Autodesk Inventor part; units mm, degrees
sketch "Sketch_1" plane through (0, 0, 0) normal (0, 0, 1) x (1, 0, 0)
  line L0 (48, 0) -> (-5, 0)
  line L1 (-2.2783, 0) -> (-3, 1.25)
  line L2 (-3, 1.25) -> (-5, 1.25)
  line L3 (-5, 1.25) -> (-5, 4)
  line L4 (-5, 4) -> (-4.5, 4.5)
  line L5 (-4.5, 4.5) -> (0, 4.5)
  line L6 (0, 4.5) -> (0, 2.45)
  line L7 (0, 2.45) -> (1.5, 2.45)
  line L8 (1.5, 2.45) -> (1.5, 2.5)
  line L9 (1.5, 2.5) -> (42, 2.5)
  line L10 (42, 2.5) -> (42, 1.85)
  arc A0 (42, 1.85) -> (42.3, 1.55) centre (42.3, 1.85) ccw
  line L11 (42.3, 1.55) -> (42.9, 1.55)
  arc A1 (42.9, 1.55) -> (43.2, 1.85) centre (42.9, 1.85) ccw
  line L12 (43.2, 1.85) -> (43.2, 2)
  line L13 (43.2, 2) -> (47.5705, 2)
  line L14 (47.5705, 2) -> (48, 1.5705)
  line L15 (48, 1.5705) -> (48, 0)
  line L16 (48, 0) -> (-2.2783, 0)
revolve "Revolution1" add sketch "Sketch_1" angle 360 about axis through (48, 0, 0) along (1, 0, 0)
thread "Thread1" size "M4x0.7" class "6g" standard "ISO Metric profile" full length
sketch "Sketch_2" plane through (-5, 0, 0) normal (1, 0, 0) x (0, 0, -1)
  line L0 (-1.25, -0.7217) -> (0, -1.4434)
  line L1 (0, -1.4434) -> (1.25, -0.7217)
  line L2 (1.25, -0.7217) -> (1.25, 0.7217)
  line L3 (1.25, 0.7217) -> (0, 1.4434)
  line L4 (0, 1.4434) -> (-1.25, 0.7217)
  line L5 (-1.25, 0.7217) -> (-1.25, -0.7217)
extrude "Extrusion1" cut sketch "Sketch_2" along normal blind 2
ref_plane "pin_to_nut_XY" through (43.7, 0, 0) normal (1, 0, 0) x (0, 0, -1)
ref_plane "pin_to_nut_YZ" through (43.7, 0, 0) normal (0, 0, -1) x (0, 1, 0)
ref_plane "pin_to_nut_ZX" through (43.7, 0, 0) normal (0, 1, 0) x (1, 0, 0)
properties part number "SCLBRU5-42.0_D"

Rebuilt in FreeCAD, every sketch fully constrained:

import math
import FreeCAD as App
import Part
import Sketcher
Q = App.Units.Quantity


def add_polygon(sketch, points):
    """Adds a closed chain of lines whose ends are joined by coincident constraints."""
    first, n = sketch.GeometryCount, len(points)
    for a, b in zip(points, points[1:] + points[:1]):
        sketch.addGeometry(Part.LineSegment(App.Vector(*a, 0), App.Vector(*b, 0)), False)
    for i in range(n):
        sketch.addConstraint(Sketcher.Constraint("Coincident", first + i, 2, first + (i + 1) % n, 1))

doc = App.newDocument("Part")
params = doc.addObject("Spreadsheet::Sheet", "Params")
for row, (alias, value) in enumerate([
    ("sketch1_radius", "0.3 mm"),
    ("sketch1_width", "2 mm"),
    ("sketch1_width2", "0.6 mm"),
    ("sketch1_width3", "40.5 mm"),
    ("sketch1_width4", "1.5 mm"),
    ("revolution_angle", "360 deg"),
    ("pocket1_length", "2 mm"),
], start=1):
    params.set(f"A{row}", alias)
    params.set(f"B{row}", "=" + value)
    params.setAlias(f"B{row}", alias)

body = doc.addObject("PartDesign::Body", "Body")

# Sketch on XY plane
sketch1 = body.newObject("Sketcher::SketchObject", "Sketch")
sketch1.AttachmentSupport = (doc.getObject("XY_Plane"), [""])
sketch1.MapMode = "FlatFace"
sketch1.addGeometry([
    Part.LineSegment(App.Vector(-2.278, 0, 0), App.Vector(48, 0, 0)),  # 0
    Part.LineSegment(App.Vector(48, 0, 0), App.Vector(48, 1.571, 0)),  # 1
    Part.LineSegment(App.Vector(48, 1.571, 0), App.Vector(47.571, 2, 0)),  # 2
    Part.LineSegment(App.Vector(47.571, 2, 0), App.Vector(43.2, 2, 0)),  # 3
    Part.LineSegment(App.Vector(43.2, 2, 0), App.Vector(43.2, 1.85, 0)),  # 4
    Part.ArcOfCircle(Part.Circle(App.Vector(42.9, 1.85, 0), App.Vector(0, 0, 1), 0.3), math.radians(-90), math.radians(0)),  # 5
    Part.LineSegment(App.Vector(42.9, 1.55, 0), App.Vector(42.3, 1.55, 0)),  # 6
    Part.ArcOfCircle(Part.Circle(App.Vector(42.3, 1.85, 0), App.Vector(0, 0, 1), 0.3), math.radians(180), math.radians(270)),  # 7
    Part.LineSegment(App.Vector(42, 1.85, 0), App.Vector(42, 2.5, 0)),  # 8
    Part.LineSegment(App.Vector(42, 2.5, 0), App.Vector(1.5, 2.5, 0)),  # 9
    Part.LineSegment(App.Vector(1.5, 2.5, 0), App.Vector(1.5, 2.45, 0)),  # 10
    Part.LineSegment(App.Vector(1.5, 2.45, 0), App.Vector(0, 2.45, 0)),  # 11
    Part.LineSegment(App.Vector(0, 2.45, 0), App.Vector(0, 4.5, 0)),  # 12
    Part.LineSegment(App.Vector(0, 4.5, 0), App.Vector(-4.5, 4.5, 0)),  # 13
    Part.LineSegment(App.Vector(-4.5, 4.5, 0), App.Vector(-5, 4, 0)),  # 14
    Part.LineSegment(App.Vector(-5, 4, 0), App.Vector(-5, 1.25, 0)),  # 15
    Part.LineSegment(App.Vector(-5, 1.25, 0), App.Vector(-3, 1.25, 0)),  # 16
    Part.LineSegment(App.Vector(-3, 1.25, 0), App.Vector(-2.278, 0, 0)),  # 17
], False)
sketch1.addConstraint([
    Sketcher.Constraint("Coincident", 0, 2, 1, 1),
    Sketcher.Constraint("Coincident", 1, 2, 2, 1),
    Sketcher.Constraint("Coincident", 2, 2, 3, 1),
    Sketcher.Constraint("Coincident", 3, 2, 4, 1),
    Sketcher.Constraint("Tangent", 4, 2, 5, 2),
    Sketcher.Constraint("Tangent", 5, 1, 6, 1),
    Sketcher.Constraint("Tangent", 6, 2, 7, 2),
    Sketcher.Constraint("Tangent", 7, 1, 8, 1),
    Sketcher.Constraint("Coincident", 8, 2, 9, 1),
    Sketcher.Constraint("Coincident", 9, 2, 10, 1),
    Sketcher.Constraint("Coincident", 10, 2, 11, 1),
    Sketcher.Constraint("Coincident", 11, 2, 12, 1),
    Sketcher.Constraint("Coincident", 12, 2, 13, 1),
    Sketcher.Constraint("Coincident", 13, 2, 14, 1),
    Sketcher.Constraint("Coincident", 14, 2, 15, 1),
    Sketcher.Constraint("Coincident", 15, 2, 16, 1),
    Sketcher.Constraint("Coincident", 16, 2, 17, 1),
    Sketcher.Constraint("Coincident", 17, 2, 0, 1),
    Sketcher.Constraint("Horizontal", 0),
    Sketcher.Constraint("Vertical", 1),
    Sketcher.Constraint("Horizontal", 3),
    Sketcher.Constraint("Vertical", 4),
    Sketcher.Constraint("Horizontal", 6),
    Sketcher.Constraint("Vertical", 8),
    Sketcher.Constraint("Horizontal", 9),
    Sketcher.Constraint("Vertical", 10),
    Sketcher.Constraint("Horizontal", 11),
    Sketcher.Constraint("Vertical", 12),
    Sketcher.Constraint("Horizontal", 13),
    Sketcher.Constraint("Vertical", 15),
    Sketcher.Constraint("Horizontal", 16),
    Sketcher.Constraint("Equal", 5, 7),
    Sketcher.Constraint("PointOnObject", 0, 2, -1),
    Sketcher.Constraint("PointOnObject", 11, 2, -2),
    Sketcher.Constraint("Perpendicular", 2, 14),
    Sketcher.Constraint("Radius", 5, Q("0.3 mm")),
    Sketcher.Constraint("DistanceX", 16, 1, 16, 2, Q("2 mm")),
    Sketcher.Constraint("Angle", 2, Q("135 deg")),
    Sketcher.Constraint("Angle", 17, Q("-59.9996 deg")),
    Sketcher.Constraint("DistanceX", 6, 2, 6, 1, Q("0.6 mm")),
    Sketcher.Constraint("DistanceX", 9, 2, 9, 1, Q("40.5 mm")),
    Sketcher.Constraint("DistanceX", 11, 2, 11, 1, Q("1.5 mm")),
    Sketcher.Constraint("DistanceX", 13, 2, 13, 1, Q("4.5 mm")),
    Sketcher.Constraint("DistanceX", -1, 1, 0, 2, Q("48 mm")),
    Sketcher.Constraint("DistanceY", -1, 1, 2, 2, Q("2 mm")),
    Sketcher.Constraint("DistanceX", 14, 2, -1, 1, Q("5 mm")),
    Sketcher.Constraint("DistanceY", -1, 1, 14, 2, Q("4 mm")),
    Sketcher.Constraint("DistanceY", 9, 2, 12, 2, Q("2 mm")),
    Sketcher.Constraint("DistanceY", 4, 2, 4, 1, Q("0.15 mm")),
    Sketcher.Constraint("DistanceY", 10, 2, 10, 1, Q("0.05 mm")),
    Sketcher.Constraint("DistanceY", 15, 2, 15, 1, Q("2.75 mm")),
    Sketcher.Constraint("DistanceX", 3, 2, 3, 1, Q("4.3705 mm")),
])
sketch1.setExpression("Constraints[35]", "Params.sketch1_radius")
sketch1.setExpression("Constraints[36]", "Params.sketch1_width")
sketch1.setExpression("Constraints[39]", "Params.sketch1_width2")
sketch1.setExpression("Constraints[40]", "Params.sketch1_width3")
sketch1.setExpression("Constraints[41]", "Params.sketch1_width4")
revolution = body.newObject("PartDesign::Revolution", "Revolution")
revolution.Profile = sketch1
revolution.ReferenceAxis = (sketch1, ["H_Axis"])
revolution.setExpression("Angle", "Params.revolution_angle")

# Sketch on YZ plane
sketch2 = body.newObject("Sketcher::SketchObject", "Sketch001")
sketch2.AttachmentSupport = (doc.getObject("YZ_Plane"), [""])
sketch2.MapMode = "FlatFace"
sketch2.AttachmentOffset = App.Placement(App.Vector(0, 0, -5), App.Rotation())
add_polygon(sketch2, [(0.7, 1.2), (-0.7, 1.2), (-1.4, 0), (-0.7, -1.2), (0.7, -1.2), (1.4, 0)])  # lines 0-5
sketch2.addConstraint([
    Sketcher.Constraint("Horizontal", 0),
    Sketcher.Constraint("Horizontal", 3),
    Sketcher.Constraint("Symmetric", 0, 2, 3, 2, -1, 1),
    Sketcher.Constraint("Symmetric", 1, 2, 4, 2, -1, 1),
    Sketcher.Constraint("PointOnObject", 1, 2, -1),
    Sketcher.Constraint("Parallel", 2, 5),
    Sketcher.Constraint("Vertical", 0, 2, 2, 2),
    Sketcher.Constraint("Angle", 1, Q("-120.0004 deg")),
    Sketcher.Constraint("DistanceY", 2, 2, 0, 2, Q("2.5 mm")),
    Sketcher.Constraint("DistanceX", 0, 2, 0, 1, Q("1.4434 mm")),
])
pocket1 = body.newObject("PartDesign::Pocket", "Pocket")
pocket1.Profile = sketch2
pocket1.setExpression("Length", "Params.pocket1_length")
pocket1.Reversed = True

doc.recompute()
